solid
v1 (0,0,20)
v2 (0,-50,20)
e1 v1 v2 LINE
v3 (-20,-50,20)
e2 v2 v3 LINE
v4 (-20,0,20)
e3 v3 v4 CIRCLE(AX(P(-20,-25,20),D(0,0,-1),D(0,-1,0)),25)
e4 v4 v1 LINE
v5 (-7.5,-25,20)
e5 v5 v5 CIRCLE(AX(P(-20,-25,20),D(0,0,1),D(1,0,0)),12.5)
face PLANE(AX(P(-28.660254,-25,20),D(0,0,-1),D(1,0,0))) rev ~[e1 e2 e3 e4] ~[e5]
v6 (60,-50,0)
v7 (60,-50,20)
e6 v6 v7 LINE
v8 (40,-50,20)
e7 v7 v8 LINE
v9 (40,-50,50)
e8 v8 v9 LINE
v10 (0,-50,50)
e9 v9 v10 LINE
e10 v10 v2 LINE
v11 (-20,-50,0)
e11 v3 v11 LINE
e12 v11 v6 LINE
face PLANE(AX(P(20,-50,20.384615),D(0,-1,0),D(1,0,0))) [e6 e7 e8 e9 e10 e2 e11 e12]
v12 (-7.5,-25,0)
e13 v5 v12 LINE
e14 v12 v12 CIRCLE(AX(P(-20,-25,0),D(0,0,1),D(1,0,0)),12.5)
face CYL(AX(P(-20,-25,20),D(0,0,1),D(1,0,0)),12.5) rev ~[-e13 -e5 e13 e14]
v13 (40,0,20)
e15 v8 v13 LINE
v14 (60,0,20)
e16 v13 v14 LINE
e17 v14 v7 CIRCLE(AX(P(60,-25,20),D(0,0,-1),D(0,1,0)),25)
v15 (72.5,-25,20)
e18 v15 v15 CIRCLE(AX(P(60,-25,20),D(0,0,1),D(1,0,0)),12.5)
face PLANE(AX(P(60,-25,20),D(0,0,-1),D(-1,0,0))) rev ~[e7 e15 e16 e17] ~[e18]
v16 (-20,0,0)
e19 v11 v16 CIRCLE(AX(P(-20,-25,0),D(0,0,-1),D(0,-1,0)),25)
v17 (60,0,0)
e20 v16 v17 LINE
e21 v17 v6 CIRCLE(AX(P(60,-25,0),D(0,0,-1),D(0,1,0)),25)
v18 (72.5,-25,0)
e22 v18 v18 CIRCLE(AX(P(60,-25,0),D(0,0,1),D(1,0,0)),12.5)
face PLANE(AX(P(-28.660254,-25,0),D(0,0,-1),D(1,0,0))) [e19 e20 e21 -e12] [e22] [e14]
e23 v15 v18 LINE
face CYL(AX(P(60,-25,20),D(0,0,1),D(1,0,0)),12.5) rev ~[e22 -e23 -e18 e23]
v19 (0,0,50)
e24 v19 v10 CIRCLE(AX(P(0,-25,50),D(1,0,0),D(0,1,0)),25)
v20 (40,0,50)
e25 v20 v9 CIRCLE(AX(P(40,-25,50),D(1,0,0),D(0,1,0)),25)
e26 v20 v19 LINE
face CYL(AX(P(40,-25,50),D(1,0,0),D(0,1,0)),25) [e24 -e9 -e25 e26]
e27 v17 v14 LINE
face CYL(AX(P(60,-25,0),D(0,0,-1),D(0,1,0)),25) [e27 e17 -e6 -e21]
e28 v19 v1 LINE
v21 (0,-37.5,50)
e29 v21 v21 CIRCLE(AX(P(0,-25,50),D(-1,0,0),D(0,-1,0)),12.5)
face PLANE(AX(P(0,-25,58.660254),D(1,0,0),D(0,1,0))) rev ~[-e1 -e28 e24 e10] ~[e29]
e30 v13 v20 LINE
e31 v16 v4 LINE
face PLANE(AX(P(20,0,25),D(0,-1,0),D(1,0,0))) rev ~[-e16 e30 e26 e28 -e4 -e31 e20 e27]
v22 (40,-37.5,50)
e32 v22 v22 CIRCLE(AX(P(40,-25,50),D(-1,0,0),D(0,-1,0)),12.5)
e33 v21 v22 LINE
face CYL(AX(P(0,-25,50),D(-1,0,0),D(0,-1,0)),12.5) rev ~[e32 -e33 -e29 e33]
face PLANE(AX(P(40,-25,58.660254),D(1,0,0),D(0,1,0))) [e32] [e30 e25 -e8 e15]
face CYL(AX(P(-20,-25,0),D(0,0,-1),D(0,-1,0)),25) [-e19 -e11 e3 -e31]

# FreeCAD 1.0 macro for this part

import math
import FreeCAD as App
import Part
import Sketcher
from FreeCAD import Vector

doc = App.newDocument("Part")
body = doc.addObject("PartDesign::Body", "Body")

sketch1 = body.newObject("Sketcher::SketchObject", "Sketch")
sketch1.AttachmentSupport = (doc.getObject("XZ_Plane"), [""])
sketch1.MapMode = "FlatFace"
sketch1.addGeometry([
    Part.LineSegment(Vector(40, 20, 0), Vector(40, 50, 0)),
    Part.LineSegment(Vector(40, 50, 0), Vector(0, 50, 0)),
    Part.LineSegment(Vector(0, 50, 0), Vector(0, 20, 0)),
    Part.LineSegment(Vector(0, 20, 0), Vector(-20, 20, 0)),
    Part.LineSegment(Vector(-20, 20, 0), Vector(-20, 0, 0)),
    Part.LineSegment(Vector(-20, 0, 0), Vector(60, 0, 0)),
    Part.LineSegment(Vector(60, 0, 0), Vector(60, 20, 0)),
    Part.LineSegment(Vector(60, 20, 0), Vector(40, 20, 0)),
], False)
sketch1.addConstraint([
    Sketcher.Constraint("Coincident", 0, 2, 1, 1),
    Sketcher.Constraint("Coincident", 1, 2, 2, 1),
    Sketcher.Constraint("Coincident", 2, 2, 3, 1),
    Sketcher.Constraint("Coincident", 3, 2, 4, 1),
    Sketcher.Constraint("Coincident", 4, 2, 5, 1),
    Sketcher.Constraint("Coincident", 5, 2, 6, 1),
    Sketcher.Constraint("Coincident", 6, 2, 7, 1),
    Sketcher.Constraint("Coincident", 7, 2, 0, 1),
    Sketcher.Constraint("Vertical", 0),
    Sketcher.Constraint("Horizontal", 1),
    Sketcher.Constraint("Vertical", 2),
    Sketcher.Constraint("Horizontal", 3),
    Sketcher.Constraint("Vertical", 4),
    Sketcher.Constraint("Horizontal", 5),
    Sketcher.Constraint("Vertical", 6),
    Sketcher.Constraint("Horizontal", 7),
    Sketcher.Constraint("PointOnObject", 1, 2, -2),
    Sketcher.Constraint("PointOnObject", 4, 2, -1),
    Sketcher.Constraint("Horizontal", 3, 2, 6, 2),
    Sketcher.Constraint("Equal", 3, 7),
    Sketcher.Constraint("Equal", 7, 4),
    Sketcher.Constraint("DistanceX", 1, 2, 1, 1, 40.0),
    Sketcher.Constraint("DistanceX", 3, 2, 3, 1, 20.0),
    Sketcher.Constraint("DistanceY", 0, 1, 0, 2, 30.0),
])
pad1 = body.newObject("PartDesign::Pad", "Pad")
pad1.Profile = sketch1
pad1.Length = 25

sketch2 = body.newObject("Sketcher::SketchObject", "Sketch001")
sketch2.AttachmentSupport = (doc.getObject("XZ_Plane"), [""])
sketch2.MapMode = "FlatFace"
sketch2.AttachmentOffset = App.Placement(Vector(0, 0, 25), App.Rotation())
sketch2.addGeometry([
    Part.LineSegment(Vector(0, 50, 0), Vector(0, 20, 0)),
    Part.LineSegment(Vector(0, 20, 0), Vector(-20, 20, 0)),
    Part.LineSegment(Vector(-20, 20, 0), Vector(-20, 0, 0)),
    Part.LineSegment(Vector(-20, 0, 0), Vector(60, 0, 0)),
    Part.LineSegment(Vector(60, 0, 0), Vector(60, 20, 0)),
    Part.LineSegment(Vector(60, 20, 0), Vector(40, 20, 0)),
    Part.LineSegment(Vector(40, 20, 0), Vector(40, 50, 0)),
    Part.LineSegment(Vector(40, 50, 0), Vector(0, 50, 0)),
], False)
sketch2.addConstraint([
    Sketcher.Constraint("Coincident", 0, 2, 1, 1),
    Sketcher.Constraint("Coincident", 1, 2, 2, 1),
    Sketcher.Constraint("Coincident", 2, 2, 3, 1),
    Sketcher.Constraint("Coincident", 3, 2, 4, 1),
    Sketcher.Constraint("Coincident", 4, 2, 5, 1),
    Sketcher.Constraint("Coincident", 5, 2, 6, 1),
    Sketcher.Constraint("Coincident", 6, 2, 7, 1),
    Sketcher.Constraint("Coincident", 7, 2, 0, 1),
    Sketcher.Constraint("Vertical", 0),
    Sketcher.Constraint("Horizontal", 1),
    Sketcher.Constraint("Vertical", 2),
    Sketcher.Constraint("Horizontal", 3),
    Sketcher.Constraint("Vertical", 4),
    Sketcher.Constraint("Horizontal", 5),
    Sketcher.Constraint("Vertical", 6),
    Sketcher.Constraint("Horizontal", 7),
    Sketcher.Constraint("PointOnObject", 0, 2, -2),
    Sketcher.Constraint("PointOnObject", 2, 2, -1),
    Sketcher.Constraint("Horizontal", 1, 2, 4, 2),
    Sketcher.Constraint("Equal", 1, 5),
    Sketcher.Constraint("Equal", 5, 2),
    Sketcher.Constraint("DistanceX", 1, 2, 1, 1, 20.0),
    Sketcher.Constraint("DistanceX", 3, 1, 3, 2, 80.0),
    Sketcher.Constraint("DistanceY", 0, 2, 0, 1, 30.0),
])
pad2 = body.newObject("PartDesign::Pad", "Pad001")
pad2.Profile = sketch2
pad2.Length = 25

sketch3 = body.newObject("Sketcher::SketchObject", "Sketch002")
sketch3.AttachmentSupport = (doc.getObject("XY_Plane"), [""])
sketch3.MapMode = "FlatFace"
sketch3.addGeometry([
    Part.ArcOfCircle(Part.Circle(Vector(-20, -25, 0), Vector(0, 0, 1), 25), math.radians(90), math.radians(270)),
    Part.LineSegment(Vector(-20, 0, 0), Vector(-20, -50, 0)),
    Part.LineSegment(Vector(60, -50, 0), Vector(60, 0, 0)),
    Part.ArcOfCircle(Part.Circle(Vector(60, -25, 0), Vector(0, 0, 1), 25), math.radians(-90), math.radians(90)),
], False)
sketch3.addConstraint([
    Sketcher.Constraint("Coincident", 0, 1, 1, 1),
    Sketcher.Constraint("Coincident", 1, 2, 0, 2),
    Sketcher.Constraint("Coincident", 2, 1, 3, 1),
    Sketcher.Constraint("Coincident", 3, 2, 2, 2),
    Sketcher.Constraint("Vertical", 1),
    Sketcher.Constraint("Vertical", 2),
    Sketcher.Constraint("Equal", 0, 3),
    Sketcher.Constraint("PointOnObject", 0, 1, -1),
    Sketcher.Constraint("PointOnObject", 3, 2, -1),
    Sketcher.Constraint("Vertical", 3, 3, 2, 1),
    Sketcher.Constraint("Radius", 0, 25.0),
    Sketcher.Constraint("DistanceX", 0, 3, -1, 1, 20.0),
    Sketcher.Constraint("DistanceX", -1, 1, 3, 3, 60.0),
    Sketcher.Constraint("DistanceX", 0, 1, -1, 1, 20.0),
])
pad3 = body.newObject("PartDesign::Pad", "Pad002")
pad3.Profile = sketch3
pad3.Length = 20

sketch4 = body.newObject("Sketcher::SketchObject", "Sketch003")
sketch4.AttachmentSupport = (doc.getObject("YZ_Plane"), [""])
sketch4.MapMode = "FlatFace"
sketch4.AttachmentOffset = App.Placement(Vector(0, 0, 40), App.Rotation())
sketch4.addGeometry([
    Part.LineSegment(Vector(-50, 50, 0), Vector(0, 50, 0)),
    Part.ArcOfCircle(Part.Circle(Vector(-25, 50, 0), Vector(0, 0, 1), 25), math.radians(0), math.radians(180)),
], False)
sketch4.addConstraint([
    Sketcher.Constraint("Coincident", 0, 1, 1, 2),
    Sketcher.Constraint("Coincident", 1, 1, 0, 2),
    Sketcher.Constraint("Horizontal", 0),
    Sketcher.Constraint("PointOnObject", 1, 1, -2),
    Sketcher.Constraint("Horizontal", 1, 3, 0, 1),
    Sketcher.Constraint("Radius", 1, 25.0),
    Sketcher.Constraint("DistanceY", -1, 1, 1, 3, 50.0),
])
pad4 = body.newObject("PartDesign::Pad", "Pad003")
pad4.Profile = sketch4
pad4.Length = 40
pad4.Reversed = True

sketch5 = body.newObject("Sketcher::SketchObject", "Sketch004")
sketch5.AttachmentSupport = (doc.getObject("XY_Plane"), [""])
sketch5.MapMode = "FlatFace"
sketch5.AttachmentOffset = App.Placement(Vector(0, 0, 20), App.Rotation())
sketch5.addGeometry(Part.Circle(Vector(60, -25, 0), Vector(0, 0, 1), 12.5), False)
sketch5.addConstraint([
    Sketcher.Constraint("Diameter", 0, 25.0),
    Sketcher.Constraint("DistanceX", -1, 1, 0, 3, 60.0),
    Sketcher.Constraint("DistanceY", 0, 3, -1, 1, 25.0),
])
pocket1 = body.newObject("PartDesign::Pocket", "Pocket")
pocket1.Profile = sketch5
pocket1.Length = 25

sketch6 = body.newObject("Sketcher::SketchObject", "Sketch005")
sketch6.AttachmentSupport = (doc.getObject("XY_Plane"), [""])
sketch6.MapMode = "FlatFace"
sketch6.AttachmentOffset = App.Placement(Vector(0, 0, 20), App.Rotation())
sketch6.addGeometry(Part.Circle(Vector(-20, -25, 0), Vector(0, 0, 1), 12.5), False)
sketch6.addConstraint([
    Sketcher.Constraint("Diameter", 0, 25.0),
    Sketcher.Constraint("DistanceX", 0, 3, -1, 1, 20.0),
    Sketcher.Constraint("DistanceY", 0, 3, -1, 1, 25.0),
])
pocket2 = body.newObject("PartDesign::Pocket", "Pocket001")
pocket2.Profile = sketch6
pocket2.Length = 25

sketch7 = body.newObject("Sketcher::SketchObject", "Sketch006")
sketch7.AttachmentSupport = (doc.getObject("YZ_Plane"), [""])
sketch7.MapMode = "FlatFace"
sketch7.addGeometry(Part.Circle(Vector(-25, 50, 0), Vector(0, 0, 1), 12.5), False)
sketch7.addConstraint([
    Sketcher.Constraint("Diameter", 0, 25.0),
    Sketcher.Constraint("DistanceX", 0, 3, -1, 1, 25.0),
    Sketcher.Constraint("DistanceY", -1, 1, 0, 3, 50.0),
])
pocket3 = body.newObject("PartDesign::Pocket", "Pocket002")
pocket3.Profile = sketch7
pocket3.Type = "ThroughAll"
pocket3.Reversed = True

doc.recompute()
